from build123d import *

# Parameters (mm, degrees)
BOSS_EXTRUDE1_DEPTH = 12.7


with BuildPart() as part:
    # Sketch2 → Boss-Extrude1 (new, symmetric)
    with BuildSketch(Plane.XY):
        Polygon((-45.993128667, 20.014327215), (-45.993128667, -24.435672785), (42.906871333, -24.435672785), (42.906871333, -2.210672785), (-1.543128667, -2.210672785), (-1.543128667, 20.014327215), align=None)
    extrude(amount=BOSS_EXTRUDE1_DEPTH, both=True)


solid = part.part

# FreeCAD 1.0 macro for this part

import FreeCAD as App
import Part
import Sketcher
from FreeCAD import Vector
Q = App.Units.Quantity


def add_polygon(sketch, points):
    """Adds a closed chain of lines whose ends are joined by coincident constraints."""
    first, n = sketch.GeometryCount, len(points)
    for a, b in zip(points, points[1:] + points[:1]):
        sketch.addGeometry(Part.LineSegment(App.Vector(*a, 0), App.Vector(*b, 0)), False)
    for i in range(n):
        sketch.addConstraint(Sketcher.Constraint("Coincident", first + i, 2, first + (i + 1) % n, 1))

doc = App.newDocument("Part")
body = doc.addObject("PartDesign::Body", "Body")

sketch1 = body.newObject("Sketcher::SketchObject", "Sketch")
sketch1.AttachmentSupport = (doc.getObject("XY_Plane"), [""])
sketch1.MapMode = "FlatFace"
add_polygon(sketch1, [(-45.993129, 20.014327), (-45.993129, -24.435673), (42.906871, -24.435673), (42.906871, -2.210673), (-1.543129, -2.210673), (-1.543129, 20.014327)])
sketch1.addConstraint([
    Sketcher.Constraint("Vertical", 0),
    Sketcher.Constraint("Horizontal", 1),
    Sketcher.Constraint("Vertical", 2),
    Sketcher.Constraint("Horizontal", 3),
    Sketcher.Constraint("Vertical", 4),
    Sketcher.Constraint("Horizontal", 5),
    Sketcher.Constraint("Equal", 3, 5),
    Sketcher.Constraint("Equal", 5, 0),
    Sketcher.Constraint("Equal", 2, 4),
    Sketcher.Constraint("DistanceX", 1, 1, 1, 2, Q("3.5 in")),
    Sketcher.Constraint("DistanceX", 0, 2, -1, 1, 45.993129),
    Sketcher.Constraint("DistanceY", 0, 2, -1, 1, 24.435673),
])
pad1 = body.newObject("PartDesign::Pad", "Pad")
pad1.Profile = sketch1
pad1.Length = Q("1 in")
pad1.Midplane = True

doc.recompute()
